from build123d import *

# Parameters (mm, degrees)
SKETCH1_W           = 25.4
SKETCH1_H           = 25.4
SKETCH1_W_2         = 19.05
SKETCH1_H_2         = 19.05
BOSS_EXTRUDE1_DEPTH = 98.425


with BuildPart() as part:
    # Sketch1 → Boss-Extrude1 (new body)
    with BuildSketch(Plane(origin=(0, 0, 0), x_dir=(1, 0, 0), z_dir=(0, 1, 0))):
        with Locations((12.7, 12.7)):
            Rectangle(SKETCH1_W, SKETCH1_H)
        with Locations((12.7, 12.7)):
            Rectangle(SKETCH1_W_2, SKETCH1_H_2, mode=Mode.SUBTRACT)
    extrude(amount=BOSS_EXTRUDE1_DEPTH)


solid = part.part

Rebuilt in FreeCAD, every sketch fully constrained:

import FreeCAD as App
import Part
import Sketcher
from FreeCAD import Vector
Q = App.Units.Quantity

doc = App.newDocument("Part")
body = doc.addObject("PartDesign::Body", "Body")

sketch1 = doc.addObject("Sketcher::SketchObject", "Sketch")
body.addObject(sketch1)
sketch1.AttachmentSupport = (doc.XZ_Plane, [""])
sketch1.MapMode = "FlatFace"
sketch1.addGeometry([
    Part.LineSegment(Vector(0, -25, 0), Vector(0, 0, 0)),
    Part.LineSegment(Vector(0, 0, 0), Vector(25, 0, 0)),
    Part.LineSegment(Vector(25, 0, 0), Vector(25, -25, 0)),
    Part.LineSegment(Vector(25, -25, 0), Vector(0, -25, 0)),
    Part.LineSegment(Vector(22, -3, 0), Vector(3, -3, 0)),
    Part.LineSegment(Vector(3, -3, 0), Vector(3, -22, 0)),
    Part.LineSegment(Vector(3, -22, 0), Vector(22, -22, 0)),
    Part.LineSegment(Vector(22, -22, 0), Vector(22, -3, 0)),
], False)
sketch1.addConstraint([
    Sketcher.Constraint("Coincident", 0, 2, 1, 1),
    Sketcher.Constraint("Coincident", 1, 2, 2, 1),
    Sketcher.Constraint("Coincident", 2, 2, 3, 1),
    Sketcher.Constraint("Coincident", 3, 2, 0, 1),
    Sketcher.Constraint("Coincident", 4, 2, 5, 1),
    Sketcher.Constraint("Coincident", 5, 2, 6, 1),
    Sketcher.Constraint("Coincident", 6, 2, 7, 1),
    Sketcher.Constraint("Coincident", 7, 2, 4, 1),
    Sketcher.Constraint("Vertical", 0),
    Sketcher.Constraint("Horizontal", 1),
    Sketcher.Constraint("Vertical", 2),
    Sketcher.Constraint("Horizontal", 3),
    Sketcher.Constraint("Horizontal", 4),
    Sketcher.Constraint("Vertical", 5),
    Sketcher.Constraint("Horizontal", 6),
    Sketcher.Constraint("Vertical", 7),
    Sketcher.Constraint("Coincident", 0, 2, -1, 1),
    Sketcher.Constraint("Equal", 3, 0),
    Sketcher.Constraint("Equal", 6, 5),
    Sketcher.Constraint("DistanceX", 1, 1, 1, 2, Q("1 in")),
    Sketcher.Constraint("DistanceX", 4, 2, 4, 1, Q("0.75 in")),
    Sketcher.Constraint("DistanceX", -1, 1, 4, 2, Q("0.125 in")),
    Sketcher.Constraint("DistanceY", 4, 2, -1, 1, Q("0.125 in")),
])
pad1 = doc.addObject("PartDesign::Pad", "Pad")
body.addObject(pad1)
pad1.Profile = sketch1
pad1.Length = Q("3.875 in")
pad1.Reversed = True

doc.recompute()
